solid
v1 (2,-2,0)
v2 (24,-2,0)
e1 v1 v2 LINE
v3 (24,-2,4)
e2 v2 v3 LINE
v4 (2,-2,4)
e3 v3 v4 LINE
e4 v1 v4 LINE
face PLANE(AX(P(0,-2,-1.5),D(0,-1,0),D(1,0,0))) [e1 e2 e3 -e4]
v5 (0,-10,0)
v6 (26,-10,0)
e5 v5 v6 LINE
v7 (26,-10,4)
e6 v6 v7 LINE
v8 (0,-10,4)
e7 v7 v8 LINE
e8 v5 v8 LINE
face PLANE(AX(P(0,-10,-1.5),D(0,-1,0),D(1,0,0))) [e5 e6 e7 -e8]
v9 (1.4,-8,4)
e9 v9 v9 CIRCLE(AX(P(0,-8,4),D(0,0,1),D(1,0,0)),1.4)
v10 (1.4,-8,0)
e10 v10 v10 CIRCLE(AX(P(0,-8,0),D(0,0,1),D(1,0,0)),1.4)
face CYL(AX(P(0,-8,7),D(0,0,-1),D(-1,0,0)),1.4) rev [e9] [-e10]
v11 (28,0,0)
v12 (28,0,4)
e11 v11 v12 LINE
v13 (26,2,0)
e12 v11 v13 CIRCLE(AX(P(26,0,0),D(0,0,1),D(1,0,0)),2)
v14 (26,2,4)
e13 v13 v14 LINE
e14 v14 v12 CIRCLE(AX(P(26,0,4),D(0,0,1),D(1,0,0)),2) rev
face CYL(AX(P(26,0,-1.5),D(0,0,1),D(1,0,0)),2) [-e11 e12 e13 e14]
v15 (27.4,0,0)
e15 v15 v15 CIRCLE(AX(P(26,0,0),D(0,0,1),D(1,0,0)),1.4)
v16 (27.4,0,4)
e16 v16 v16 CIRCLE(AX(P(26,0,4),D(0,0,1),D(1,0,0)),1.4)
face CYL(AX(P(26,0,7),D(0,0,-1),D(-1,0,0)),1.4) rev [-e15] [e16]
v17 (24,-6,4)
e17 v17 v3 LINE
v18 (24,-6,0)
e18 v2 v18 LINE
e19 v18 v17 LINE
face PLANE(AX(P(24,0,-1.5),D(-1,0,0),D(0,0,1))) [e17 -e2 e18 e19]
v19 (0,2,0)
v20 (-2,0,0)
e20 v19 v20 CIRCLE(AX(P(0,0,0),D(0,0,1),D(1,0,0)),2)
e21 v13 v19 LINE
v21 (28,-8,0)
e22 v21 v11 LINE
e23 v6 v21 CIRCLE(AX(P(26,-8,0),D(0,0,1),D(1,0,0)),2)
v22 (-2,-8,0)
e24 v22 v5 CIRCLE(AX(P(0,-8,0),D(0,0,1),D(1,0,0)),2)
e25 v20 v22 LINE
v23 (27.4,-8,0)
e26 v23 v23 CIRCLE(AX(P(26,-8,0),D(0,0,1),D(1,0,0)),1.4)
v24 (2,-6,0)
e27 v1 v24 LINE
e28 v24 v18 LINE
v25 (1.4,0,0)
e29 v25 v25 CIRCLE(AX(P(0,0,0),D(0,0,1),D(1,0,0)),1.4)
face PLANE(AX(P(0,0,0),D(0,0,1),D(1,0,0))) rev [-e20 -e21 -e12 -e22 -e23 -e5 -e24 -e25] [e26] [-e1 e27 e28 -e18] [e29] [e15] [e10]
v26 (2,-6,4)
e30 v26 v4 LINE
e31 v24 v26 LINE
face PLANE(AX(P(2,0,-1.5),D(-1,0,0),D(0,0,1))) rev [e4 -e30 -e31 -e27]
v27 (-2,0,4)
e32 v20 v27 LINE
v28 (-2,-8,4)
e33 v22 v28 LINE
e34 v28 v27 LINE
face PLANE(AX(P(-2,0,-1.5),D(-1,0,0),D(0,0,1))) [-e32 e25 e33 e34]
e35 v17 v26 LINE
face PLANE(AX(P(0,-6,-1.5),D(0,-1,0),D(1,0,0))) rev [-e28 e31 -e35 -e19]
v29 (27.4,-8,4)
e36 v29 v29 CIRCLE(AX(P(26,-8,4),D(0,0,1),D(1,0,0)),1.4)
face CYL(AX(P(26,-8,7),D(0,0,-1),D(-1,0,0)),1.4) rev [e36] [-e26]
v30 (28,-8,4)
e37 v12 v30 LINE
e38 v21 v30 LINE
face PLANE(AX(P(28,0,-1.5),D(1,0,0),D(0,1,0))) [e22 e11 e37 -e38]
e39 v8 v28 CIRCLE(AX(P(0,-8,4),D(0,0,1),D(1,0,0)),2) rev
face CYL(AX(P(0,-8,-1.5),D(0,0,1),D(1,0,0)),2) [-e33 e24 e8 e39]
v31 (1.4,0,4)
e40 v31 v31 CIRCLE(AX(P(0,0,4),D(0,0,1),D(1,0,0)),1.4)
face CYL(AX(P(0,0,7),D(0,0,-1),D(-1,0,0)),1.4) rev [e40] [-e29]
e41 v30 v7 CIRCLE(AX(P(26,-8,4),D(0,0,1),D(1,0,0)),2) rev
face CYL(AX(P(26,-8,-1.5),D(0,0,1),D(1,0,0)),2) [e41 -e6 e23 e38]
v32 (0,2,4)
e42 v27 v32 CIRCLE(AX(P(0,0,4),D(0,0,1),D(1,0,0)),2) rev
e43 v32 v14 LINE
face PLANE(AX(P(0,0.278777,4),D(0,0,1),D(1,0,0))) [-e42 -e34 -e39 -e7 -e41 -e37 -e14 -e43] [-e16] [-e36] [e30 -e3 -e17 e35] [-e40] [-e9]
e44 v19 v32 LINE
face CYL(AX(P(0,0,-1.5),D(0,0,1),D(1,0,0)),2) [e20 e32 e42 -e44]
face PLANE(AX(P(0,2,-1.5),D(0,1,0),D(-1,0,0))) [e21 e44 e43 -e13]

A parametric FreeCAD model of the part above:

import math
import FreeCAD as App
import Part
import Sketcher
from FreeCAD import Vector

doc = App.newDocument("Part")
params = doc.addObject("Spreadsheet::Sheet", "Params")
for row, (alias, value) in enumerate([
    ("sketch1_radius", "3 mm"),
    ("sketch1_diameter", "2.8 mm"),
    ("sketch1_width", "26 mm"),
    ("sketch1_width2", "20 mm"),
    ("sketch1_height", "8 mm"),
    ("pad1_length", "7 mm"),
    ("sketch2_radius", "3 mm"),
    ("sketch2_radius2", "2 mm"),
    ("sketch2_width", "26 mm"),
    ("sketch2_width2", "22 mm"),
    ("sketch2_width3", "20 mm"),
    ("pocket1_length", "8.5 mm"),
    ("pocket2_length", "3 mm"),
], start=1):
    params.set(f"A{row}", alias)
    params.set(f"B{row}", "=" + value)
    params.setAlias(f"B{row}", alias)

body = doc.addObject("PartDesign::Body", "Body")

sketch1 = body.newObject("Sketcher::SketchObject", "Sketch")
sketch1.AttachmentSupport = (doc.getObject("XY_Plane"), [""])
sketch1.MapMode = "FlatFace"
sketch1.addGeometry(Part.LineSegment(Vector(-3, 0, 0), Vector(-3, -8, 0)), False)
sketch1.addGeometry(Part.ArcOfCircle(Part.Circle(Vector(0, -8, 0), Vector(0, 0, 1), 3), math.radians(180), math.radians(270)), False)
sketch1.addGeometry(Part.LineSegment(Vector(0, -11, 0), Vector(26, -11, 0)), False)
sketch1.addGeometry(Part.ArcOfCircle(Part.Circle(Vector(26, -8, 0), Vector(0, 0, 1), 3), math.radians(-90), math.radians(0)), False)
sketch1.addGeometry(Part.LineSegment(Vector(29, -8, 0), Vector(29, 0, 0)), False)
sketch1.addGeometry(Part.ArcOfCircle(Part.Circle(Vector(26, 0, 0), Vector(0, 0, 1), 3), math.radians(0), math.radians(90)), False)
sketch1.addGeometry(Part.LineSegment(Vector(26, 3, 0), Vector(0, 3, 0)), False)
sketch1.addGeometry(Part.ArcOfCircle(Part.Circle(Vector(0, 0, 0), Vector(0, 0, 1), 3), math.radians(90), math.radians(180)), False)
sketch1.addGeometry(Part.Circle(Vector(0, -8, 0), Vector(0, 0, 1), 1.4), False)
sketch1.addGeometry(Part.Circle(Vector(26, -8, 0), Vector(0, 0, 1), 1.4), False)
sketch1.addGeometry(Part.Circle(Vector(0, 0, 0), Vector(0, 0, 1), 1.4), False)
sketch1.addGeometry(Part.LineSegment(Vector(23, -5, 0), Vector(3, -5, 0)), False)
sketch1.addGeometry(Part.LineSegment(Vector(3, -5, 0), Vector(3, -3, 0)), False)
sketch1.addGeometry(Part.LineSegment(Vector(3, -3, 0), Vector(23, -3, 0)), False)
sketch1.addGeometry(Part.LineSegment(Vector(23, -3, 0), Vector(23, -5, 0)), False)
sketch1.addGeometry(Part.Circle(Vector(26, 0, 0), Vector(0, 0, 1), 1.4), False)
sketch1.addConstraint(Sketcher.Constraint("Tangent", 0, 2, 1, 1))
sketch1.addConstraint(Sketcher.Constraint("Tangent", 1, 2, 2, 1))
sketch1.addConstraint(Sketcher.Constraint("Tangent", 2, 2, 3, 1))
sketch1.addConstraint(Sketcher.Constraint("Tangent", 3, 2, 4, 1))
sketch1.addConstraint(Sketcher.Constraint("Tangent", 4, 2, 5, 1))
sketch1.addConstraint(Sketcher.Constraint("Tangent", 5, 2, 6, 1))
sketch1.addConstraint(Sketcher.Constraint("Tangent", 6, 2, 7, 1))
sketch1.addConstraint(Sketcher.Constraint("Tangent", 7, 2, 0, 1))
sketch1.addConstraint(Sketcher.Constraint("Coincident", 11, 2, 12, 1))
sketch1.addConstraint(Sketcher.Constraint("Coincident", 12, 2, 13, 1))
sketch1.addConstraint(Sketcher.Constraint("Coincident", 13, 2, 14, 1))
sketch1.addConstraint(Sketcher.Constraint("Coincident", 14, 2, 11, 1))
sketch1.addConstraint(Sketcher.Constraint("Vertical", 0))
sketch1.addConstraint(Sketcher.Constraint("Horizontal", 2))
sketch1.addConstraint(Sketcher.Constraint("Vertical", 4))
sketch1.addConstraint(Sketcher.Constraint("Horizontal", 6))
sketch1.addConstraint(Sketcher.Constraint("Horizontal", 11))
sketch1.addConstraint(Sketcher.Constraint("Vertical", 12))
sketch1.addConstraint(Sketcher.Constraint("Horizontal", 13))
sketch1.addConstraint(Sketcher.Constraint("Vertical", 14))
sketch1.addConstraint(Sketcher.Constraint("Coincident", 7, 3, -1, 1))
sketch1.addConstraint(Sketcher.Constraint("Coincident", 10, 3, -1, 1))
sketch1.addConstraint(Sketcher.Constraint("Coincident", 8, 3, 1, 3))
sketch1.addConstraint(Sketcher.Constraint("Coincident", 9, 3, 3, 3))
sketch1.addConstraint(Sketcher.Constraint("Coincident", 15, 3, 5, 3))
sketch1.addConstraint(Sketcher.Constraint("Equal", 1, 3))
sketch1.addConstraint(Sketcher.Constraint("Equal", 3, 5))
sketch1.addConstraint(Sketcher.Constraint("Equal", 5, 7))
sketch1.addConstraint(Sketcher.Constraint("Equal", 8, 9))
sketch1.addConstraint(Sketcher.Constraint("Equal", 9, 10))
sketch1.addConstraint(Sketcher.Constraint("Equal", 10, 15))
sketch1.addConstraint(Sketcher.Constraint("Radius", 1, 3.0))
sketch1.addConstraint(Sketcher.Constraint("Diameter", 8, 2.8))
sketch1.addConstraint(Sketcher.Constraint("DistanceX", 2, 1, 2, 2, 26.0))
sketch1.addConstraint(Sketcher.Constraint("DistanceX", 11, 2, 11, 1, 20.0))
sketch1.addConstraint(Sketcher.Constraint("DistanceY", 0, 2, 0, 1, 8.0))
sketch1.addConstraint(Sketcher.Constraint("DistanceY", 12, 1, 12, 2, 2.0))
sketch1.addConstraint(Sketcher.Constraint("DistanceX", -1, 1, 11, 2, 3.0))
sketch1.addConstraint(Sketcher.Constraint("DistanceY", 11, 2, -1, 1, 5.0))
sketch1.setExpression("Constraints[31]", "Params.sketch1_radius")
sketch1.setExpression("Constraints[32]", "Params.sketch1_diameter")
sketch1.setExpression("Constraints[33]", "Params.sketch1_width")
sketch1.setExpression("Constraints[34]", "Params.sketch1_width2")
sketch1.setExpression("Constraints[35]", "Params.sketch1_height")
pad1 = body.newObject("PartDesign::Pad", "Pad")
pad1.Profile = sketch1
pad1.setExpression("Length", "Params.pad1_length")

sketch2 = body.newObject("Sketcher::SketchObject", "Sketch001")
sketch2.AttachmentSupport = (doc.getObject("XY_Plane"), [""])
sketch2.MapMode = "FlatFace"
sketch2.AttachmentOffset = App.Placement(Vector(0, 0, 7), App.Rotation())
sketch2.addGeometry(Part.LineSegment(Vector(26, 3, 0), Vector(0, 3, 0)), False)
sketch2.addGeometry(Part.ArcOfCircle(Part.Circle(Vector(0, 0, 0), Vector(0, 0, 1), 3), math.radians(90), math.radians(180)), False)
sketch2.addGeometry(Part.LineSegment(Vector(-3, 0, 0), Vector(-3, -8, 0)), False)
sketch2.addGeometry(Part.ArcOfCircle(Part.Circle(Vector(0, -8, 0), Vector(0, 0, 1), 3), math.radians(180), math.radians(270)), False)
sketch2.addGeometry(Part.LineSegment(Vector(0, -11, 0), Vector(26, -11, 0)), False)
sketch2.addGeometry(Part.ArcOfCircle(Part.Circle(Vector(26, -8, 0), Vector(0, 0, 1), 3), math.radians(-90), math.radians(0)), False)
sketch2.addGeometry(Part.LineSegment(Vector(29, -8, 0), Vector(29, 0, 0)), False)
sketch2.addGeometry(Part.ArcOfCircle(Part.Circle(Vector(26, 0, 0), Vector(0, 0, 1), 3), math.radians(0), math.radians(90)), False)
sketch2.addGeometry(Part.ArcOfCircle(Part.Circle(Vector(0, -8, 0), Vector(0, 0, 1), 2), math.radians(-180), math.radians(-90)), False)
sketch2.addGeometry(Part.LineSegment(Vector(-2, -8, 0), Vector(-2, 0, 0)), False)
sketch2.addGeometry(Part.ArcOfCircle(Part.Circle(Vector(0, 0, 0), Vector(0, 0, 1), 2), math.radians(90), math.radians(180)), False)
sketch2.addGeometry(Part.LineSegment(Vector(0, 2, 0), Vector(26, 2, 0)), False)
sketch2.addGeometry(Part.ArcOfCircle(Part.Circle(Vector(26, 0, 0), Vector(0, 0, 1), 2), math.radians(0), math.radians(90)), False)
sketch2.addGeometry(Part.LineSegment(Vector(28, 0, 0), Vector(28, -8, 0)), False)
sketch2.addGeometry(Part.ArcOfCircle(Part.Circle(Vector(26, -8, 0), Vector(0, 0, 1), 2), math.radians(-90), math.radians(0)), False)
sketch2.addGeometry(Part.LineSegment(Vector(26, -10, 0), Vector(0, -10, 0)), False)
sketch2.addGeometry(Part.LineSegment(Vector(2, -2, 0), Vector(2, -6, 0)), False)
sketch2.addGeometry(Part.LineSegment(Vector(2, -6, 0), Vector(24, -6, 0)), False)
sketch2.addGeometry(Part.LineSegment(Vector(24, -6, 0), Vector(24, -2, 0)), False)
sketch2.addGeometry(Part.LineSegment(Vector(24, -2, 0), Vector(2, -2, 0)), False)
sketch2.addGeometry(Part.LineSegment(Vector(23, -5, 0), Vector(3, -5, 0)), False)
sketch2.addGeometry(Part.LineSegment(Vector(3, -5, 0), Vector(3, -3, 0)), False)
sketch2.addGeometry(Part.LineSegment(Vector(3, -3, 0), Vector(23, -3, 0)), False)
sketch2.addGeometry(Part.LineSegment(Vector(23, -3, 0), Vector(23, -5, 0)), False)
sketch2.addConstraint(Sketcher.Constraint("Tangent", 0, 2, 1, 1))
sketch2.addConstraint(Sketcher.Constraint("Tangent", 1, 2, 2, 1))
sketch2.addConstraint(Sketcher.Constraint("Tangent", 2, 2, 3, 1))
sketch2.addConstraint(Sketcher.Constraint("Tangent", 3, 2, 4, 1))
sketch2.addConstraint(Sketcher.Constraint("Tangent", 4, 2, 5, 1))
sketch2.addConstraint(Sketcher.Constraint("Tangent", 5, 2, 6, 1))
sketch2.addConstraint(Sketcher.Constraint("Tangent", 6, 2, 7, 1))
sketch2.addConstraint(Sketcher.Constraint("Tangent", 7, 2, 0, 1))
sketch2.addConstraint(Sketcher.Constraint("Tangent", 8, 1, 9, 1))
sketch2.addConstraint(Sketcher.Constraint("Tangent", 9, 2, 10, 2))
sketch2.addConstraint(Sketcher.Constraint("Tangent", 10, 1, 11, 1))
sketch2.addConstraint(Sketcher.Constraint("Tangent", 11, 2, 12, 2))
sketch2.addConstraint(Sketcher.Constraint("Tangent", 12, 1, 13, 1))
sketch2.addConstraint(Sketcher.Constraint("Tangent", 13, 2, 14, 2))
sketch2.addConstraint(Sketcher.Constraint("Tangent", 14, 1, 15, 1))
sketch2.addConstraint(Sketcher.Constraint("Tangent", 15, 2, 8, 2))
sketch2.addConstraint(Sketcher.Constraint("Coincident", 16, 2, 17, 1))
sketch2.addConstraint(Sketcher.Constraint("Coincident", 17, 2, 18, 1))
sketch2.addConstraint(Sketcher.Constraint("Coincident", 18, 2, 19, 1))
sketch2.addConstraint(Sketcher.Constraint("Coincident", 19, 2, 16, 1))
sketch2.addConstraint(Sketcher.Constraint("Coincident", 20, 2, 21, 1))
sketch2.addConstraint(Sketcher.Constraint("Coincident", 21, 2, 22, 1))
sketch2.addConstraint(Sketcher.Constraint("Coincident", 22, 2, 23, 1))
sketch2.addConstraint(Sketcher.Constraint("Coincident", 23, 2, 20, 1))
sketch2.addConstraint(Sketcher.Constraint("Horizontal", 0))
sketch2.addConstraint(Sketcher.Constraint("Vertical", 2))
sketch2.addConstraint(Sketcher.Constraint("Horizontal", 4))
sketch2.addConstraint(Sketcher.Constraint("Vertical", 6))
sketch2.addConstraint(Sketcher.Constraint("Vertical", 9))
sketch2.addConstraint(Sketcher.Constraint("Horizontal", 11))
sketch2.addConstraint(Sketcher.Constraint("Vertical", 13))
sketch2.addConstraint(Sketcher.Constraint("Horizontal", 15))
sketch2.addConstraint(Sketcher.Constraint("Vertical", 16))
sketch2.addConstraint(Sketcher.Constraint("Horizontal", 17))
sketch2.addConstraint(Sketcher.Constraint("Vertical", 18))
sketch2.addConstraint(Sketcher.Constraint("Horizontal", 19))
sketch2.addConstraint(Sketcher.Constraint("Horizontal", 20))
sketch2.addConstraint(Sketcher.Constraint("Vertical", 21))
sketch2.addConstraint(Sketcher.Constraint("Horizontal", 22))
sketch2.addConstraint(Sketcher.Constraint("Vertical", 23))
sketch2.addConstraint(Sketcher.Constraint("Coincident", 1, 3, -1, 1))
sketch2.addConstraint(Sketcher.Constraint("Coincident", 10, 3, -1, 1))
sketch2.addConstraint(Sketcher.Constraint("Coincident", 8, 3, 3, 3))
sketch2.addConstraint(Sketcher.Constraint("Coincident", 12, 3, 7, 3))
sketch2.addConstraint(Sketcher.Constraint("Equal", 1, 3))
sketch2.addConstraint(Sketcher.Constraint("Equal", 3, 5))
sketch2.addConstraint(Sketcher.Constraint("Equal", 5, 7))
sketch2.addConstraint(Sketcher.Constraint("Equal", 12, 14))
sketch2.addConstraint(Sketcher.Constraint("Radius", 1, 3.0))
sketch2.addConstraint(Sketcher.Constraint("Radius", 8, 2.0))
sketch2.addConstraint(Sketcher.Constraint("DistanceX", 0, 2, 0, 1, 26.0))
sketch2.addConstraint(Sketcher.Constraint("DistanceX", 17, 1, 17, 2, 22.0))
sketch2.addConstraint(Sketcher.Constraint("DistanceX", 20, 2, 20, 1, 20.0))
sketch2.addConstraint(Sketcher.Constraint("DistanceY", 2, 2, 2, 1, 8.0))
sketch2.addConstraint(Sketcher.Constraint("DistanceY", 16, 2, 16, 1, 4.0))
sketch2.addConstraint(Sketcher.Constraint("DistanceY", 21, 1, 21, 2, 2.0))
sketch2.addConstraint(Sketcher.Constraint("DistanceX", -1, 1, 16, 2, 2.0))
sketch2.addConstraint(Sketcher.Constraint("DistanceY", 16, 2, -1, 1, 6.0))
sketch2.addConstraint(Sketcher.Constraint("DistanceX", -1, 1, 20, 2, 3.0))
sketch2.addConstraint(Sketcher.Constraint("DistanceY", 20, 2, -1, 1, 5.0))
sketch2.setExpression("Constraints[48]", "Params.sketch2_radius")
sketch2.setExpression("Constraints[49]", "Params.sketch2_radius2")
sketch2.setExpression("Constraints[50]", "Params.sketch2_width")
sketch2.setExpression("Constraints[51]", "Params.sketch2_width2")
sketch2.setExpression("Constraints[52]", "Params.sketch2_width3")
pocket1 = body.newObject("PartDesign::Pocket", "Pocket")
pocket1.Profile = sketch2
pocket1.setExpression("Length", "Params.pocket1_length")

sketch3 = body.newObject("Sketcher::SketchObject", "Sketch002")
sketch3.AttachmentSupport = (doc.getObject("XY_Plane"), [""])
sketch3.MapMode = "FlatFace"
sketch3.AttachmentOffset = App.Placement(Vector(0, 0, 7), App.Rotation())
sketch3.addGeometry(Part.Circle(Vector(0, 0, 0), Vector(0, 0, 1), 40), False)
sketch3.addConstraint(Sketcher.Constraint("PointOnObject", 0, 3, -2))
sketch3.addConstraint(Sketcher.Constraint("Diameter", 0, 79.59772))
sketch3.addConstraint(Sketcher.Constraint("DistanceY", -1, 1, 0, 3, 0.278777))
pocket2 = body.newObject("PartDesign::Pocket", "Pocket001")
pocket2.Profile = sketch3
pocket2.setExpression("Length", "Params.pocket2_length")

doc.recompute()
